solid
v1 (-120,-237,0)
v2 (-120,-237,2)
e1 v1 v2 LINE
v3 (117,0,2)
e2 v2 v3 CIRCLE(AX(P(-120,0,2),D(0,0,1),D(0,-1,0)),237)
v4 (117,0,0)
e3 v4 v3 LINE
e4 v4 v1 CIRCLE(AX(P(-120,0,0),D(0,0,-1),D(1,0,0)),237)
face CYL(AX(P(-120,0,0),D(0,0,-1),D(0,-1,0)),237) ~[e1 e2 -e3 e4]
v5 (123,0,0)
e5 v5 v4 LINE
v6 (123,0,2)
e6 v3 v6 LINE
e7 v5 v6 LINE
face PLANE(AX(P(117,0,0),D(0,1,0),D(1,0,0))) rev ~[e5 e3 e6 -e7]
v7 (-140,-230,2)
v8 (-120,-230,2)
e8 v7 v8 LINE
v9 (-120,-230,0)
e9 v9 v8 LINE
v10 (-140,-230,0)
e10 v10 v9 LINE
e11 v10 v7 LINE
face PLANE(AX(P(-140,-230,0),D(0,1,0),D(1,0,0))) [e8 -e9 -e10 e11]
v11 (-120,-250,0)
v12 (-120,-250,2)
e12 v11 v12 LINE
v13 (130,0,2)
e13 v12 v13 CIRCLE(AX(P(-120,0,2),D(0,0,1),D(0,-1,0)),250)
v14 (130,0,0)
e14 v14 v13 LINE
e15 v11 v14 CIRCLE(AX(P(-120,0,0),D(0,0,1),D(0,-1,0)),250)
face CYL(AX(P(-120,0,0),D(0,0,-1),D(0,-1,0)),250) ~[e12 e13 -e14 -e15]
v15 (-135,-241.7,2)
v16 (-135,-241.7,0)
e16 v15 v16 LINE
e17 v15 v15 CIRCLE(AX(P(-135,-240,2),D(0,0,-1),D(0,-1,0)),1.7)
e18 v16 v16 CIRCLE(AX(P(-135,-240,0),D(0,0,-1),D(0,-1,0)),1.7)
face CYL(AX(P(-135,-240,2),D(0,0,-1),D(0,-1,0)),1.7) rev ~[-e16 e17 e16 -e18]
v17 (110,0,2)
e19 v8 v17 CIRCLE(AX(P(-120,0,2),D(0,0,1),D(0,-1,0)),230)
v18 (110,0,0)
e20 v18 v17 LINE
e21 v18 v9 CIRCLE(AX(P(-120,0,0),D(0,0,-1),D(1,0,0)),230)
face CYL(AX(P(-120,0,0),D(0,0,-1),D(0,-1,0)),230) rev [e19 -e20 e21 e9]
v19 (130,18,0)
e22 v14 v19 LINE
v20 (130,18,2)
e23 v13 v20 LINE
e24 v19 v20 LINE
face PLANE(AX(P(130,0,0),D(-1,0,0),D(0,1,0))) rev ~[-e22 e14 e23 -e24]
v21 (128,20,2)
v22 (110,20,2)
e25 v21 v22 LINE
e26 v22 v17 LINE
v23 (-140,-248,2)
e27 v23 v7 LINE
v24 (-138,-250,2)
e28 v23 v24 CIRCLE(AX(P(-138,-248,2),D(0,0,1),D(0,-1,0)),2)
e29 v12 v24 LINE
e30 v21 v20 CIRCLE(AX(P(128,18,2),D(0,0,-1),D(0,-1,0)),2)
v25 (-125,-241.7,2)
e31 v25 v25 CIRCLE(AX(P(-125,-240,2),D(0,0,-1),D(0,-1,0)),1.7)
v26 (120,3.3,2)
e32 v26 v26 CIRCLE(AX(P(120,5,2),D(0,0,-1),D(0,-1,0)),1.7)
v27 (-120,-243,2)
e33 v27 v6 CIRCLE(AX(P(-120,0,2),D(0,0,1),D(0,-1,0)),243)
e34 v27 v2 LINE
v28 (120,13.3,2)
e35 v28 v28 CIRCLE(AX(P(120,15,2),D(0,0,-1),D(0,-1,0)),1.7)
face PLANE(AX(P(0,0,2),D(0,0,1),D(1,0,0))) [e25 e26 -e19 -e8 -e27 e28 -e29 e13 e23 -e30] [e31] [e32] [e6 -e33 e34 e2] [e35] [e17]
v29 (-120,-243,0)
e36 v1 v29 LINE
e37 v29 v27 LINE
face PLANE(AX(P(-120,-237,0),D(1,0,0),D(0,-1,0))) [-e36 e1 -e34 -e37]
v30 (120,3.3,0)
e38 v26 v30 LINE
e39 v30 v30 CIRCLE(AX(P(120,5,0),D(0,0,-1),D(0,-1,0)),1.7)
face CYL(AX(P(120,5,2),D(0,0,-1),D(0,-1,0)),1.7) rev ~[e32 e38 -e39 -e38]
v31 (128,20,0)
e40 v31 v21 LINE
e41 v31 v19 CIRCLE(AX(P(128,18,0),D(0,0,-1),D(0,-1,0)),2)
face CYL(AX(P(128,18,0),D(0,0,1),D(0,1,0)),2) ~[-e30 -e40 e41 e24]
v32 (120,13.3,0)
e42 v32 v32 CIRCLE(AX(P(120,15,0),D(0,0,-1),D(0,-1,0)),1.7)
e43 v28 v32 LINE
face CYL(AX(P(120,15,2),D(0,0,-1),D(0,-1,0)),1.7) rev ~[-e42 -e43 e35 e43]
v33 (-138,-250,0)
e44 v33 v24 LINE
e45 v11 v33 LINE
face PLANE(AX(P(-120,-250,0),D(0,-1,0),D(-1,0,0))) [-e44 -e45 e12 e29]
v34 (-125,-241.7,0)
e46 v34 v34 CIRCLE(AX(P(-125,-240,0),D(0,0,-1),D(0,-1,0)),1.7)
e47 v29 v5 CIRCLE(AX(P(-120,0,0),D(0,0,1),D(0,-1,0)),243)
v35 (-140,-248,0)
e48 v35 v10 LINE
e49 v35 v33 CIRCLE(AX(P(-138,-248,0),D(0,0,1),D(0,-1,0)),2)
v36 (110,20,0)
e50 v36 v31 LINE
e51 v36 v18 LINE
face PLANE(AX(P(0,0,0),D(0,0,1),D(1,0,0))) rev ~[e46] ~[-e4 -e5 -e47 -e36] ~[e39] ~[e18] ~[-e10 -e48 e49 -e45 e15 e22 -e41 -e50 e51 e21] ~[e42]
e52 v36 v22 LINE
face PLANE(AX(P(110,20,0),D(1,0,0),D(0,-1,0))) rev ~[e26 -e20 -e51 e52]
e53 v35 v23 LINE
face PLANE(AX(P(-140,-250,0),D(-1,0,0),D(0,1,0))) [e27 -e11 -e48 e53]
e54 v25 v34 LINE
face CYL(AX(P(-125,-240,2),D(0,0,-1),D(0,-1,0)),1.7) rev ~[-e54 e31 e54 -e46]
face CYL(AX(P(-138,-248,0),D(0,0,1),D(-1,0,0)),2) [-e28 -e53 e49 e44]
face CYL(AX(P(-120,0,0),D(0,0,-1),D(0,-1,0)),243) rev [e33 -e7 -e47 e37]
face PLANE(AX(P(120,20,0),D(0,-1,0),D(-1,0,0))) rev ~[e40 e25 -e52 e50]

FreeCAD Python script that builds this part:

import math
import FreeCAD as App
import Part
import Sketcher
Q = App.Units.Quantity


def edges_at(feature, points):
    """Names of the edges that pass closest to the given points."""
    edges = feature.Shape.Edges
    near = lambda p: min(range(len(edges)), key=lambda i: edges[i].distToShape(Part.Vertex(*p))[0])
    return sorted({f"Edge{near(p) + 1}" for p in points})

doc = App.newDocument("Part")
body = doc.addObject("PartDesign::Body", "Body")

# Sketch on XY plane
sketch1 = body.newObject("Sketcher::SketchObject", "Sketch")
sketch1.AttachmentSupport = (doc.getObject("XY_Plane"), [""])
sketch1.MapMode = "FlatFace"
sketch1.addGeometry([
    Part.ArcOfCircle(Part.Circle(App.Vector(-120, 0, 0), App.Vector(0, 0, 1), 230), math.radians(-90), math.radians(0)),  # 0
    Part.LineSegment(App.Vector(-120, -230, 0), App.Vector(-140, -230, 0)),  # 1
    Part.LineSegment(App.Vector(-140, -230, 0), App.Vector(-140, -250, 0)),  # 2
    Part.LineSegment(App.Vector(-140, -250, 0), App.Vector(-120, -250, 0)),  # 3
    Part.ArcOfCircle(Part.Circle(App.Vector(-120, 0, 0), App.Vector(0, 0, 1), 250), math.radians(-90), math.radians(0)),  # 4
    Part.LineSegment(App.Vector(130, 0, 0), App.Vector(130, 20, 0)),  # 5
    Part.LineSegment(App.Vector(130, 20, 0), App.Vector(110, 20, 0)),  # 6
    Part.LineSegment(App.Vector(110, 20, 0), App.Vector(110, 0, 0)),  # 7
    Part.LineSegment(App.Vector(117, 0, 0), App.Vector(123, 0, 0)),  # 8
    Part.ArcOfCircle(Part.Circle(App.Vector(-120, 0, 0), App.Vector(0, 0, 1), 243), math.radians(-90), math.radians(0)),  # 9
    Part.LineSegment(App.Vector(-120, -243, 0), App.Vector(-120, -237, 0)),  # 10
    Part.ArcOfCircle(Part.Circle(App.Vector(-120, 0, 0), App.Vector(0, 0, 1), 237), math.radians(-90), math.radians(0)),  # 11
], False)
sketch1.addConstraint([
    Sketcher.Constraint("Tangent", 0, 1, 1, 1),
    Sketcher.Constraint("Coincident", 1, 2, 2, 1),
    Sketcher.Constraint("Coincident", 2, 2, 3, 1),
    Sketcher.Constraint("Tangent", 3, 2, 4, 1),
    Sketcher.Constraint("Tangent", 4, 2, 5, 1),
    Sketcher.Constraint("Coincident", 5, 2, 6, 1),
    Sketcher.Constraint("Coincident", 6, 2, 7, 1),
    Sketcher.Constraint("Tangent", 7, 2, 0, 2),
    Sketcher.Constraint("Coincident", 8, 2, 9, 2),
    Sketcher.Constraint("Coincident", 9, 1, 10, 1),
    Sketcher.Constraint("Coincident", 10, 2, 11, 1),
    Sketcher.Constraint("Coincident", 11, 2, 8, 1),
    Sketcher.Constraint("Horizontal", 1),
    Sketcher.Constraint("Vertical", 2),
    Sketcher.Constraint("Horizontal", 3),
    Sketcher.Constraint("Vertical", 5),
    Sketcher.Constraint("Horizontal", 6),
    Sketcher.Constraint("Vertical", 7),
    Sketcher.Constraint("Horizontal", 8),
    Sketcher.Constraint("Vertical", 10),
    Sketcher.Constraint("Coincident", 4, 3, 0, 3),
    Sketcher.Constraint("Coincident", 9, 3, 0, 3),
    Sketcher.Constraint("Coincident", 11, 3, 0, 3),
    Sketcher.Constraint("PointOnObject", 0, 3, -1),
    Sketcher.Constraint("PointOnObject", 8, 2, -1),
    Sketcher.Constraint("Vertical", 3, 2, 9, 1),
    Sketcher.Constraint("Equal", 3, 6),
    Sketcher.Constraint("Equal", 2, 5),
    Sketcher.Constraint("DistanceX", 1, 2, 1, 1, Q("20 mm")),
    Sketcher.Constraint("DistanceX", -1, 1, 6, 2, Q("110 mm")),
    Sketcher.Constraint("Radius", 0, Q("230 mm")),
    Sketcher.Constraint("Radius", 9, Q("243 mm")),
    Sketcher.Constraint("Radius", 11, Q("237 mm")),
])
pad1 = body.newObject("PartDesign::Pad", "Pad")
pad1.Profile = sketch1
pad1.Length = 2

# Sketch on XY plane
sketch2 = body.newObject("Sketcher::SketchObject", "Sketch001")
sketch2.AttachmentSupport = (doc.getObject("XY_Plane"), [""])
sketch2.MapMode = "FlatFace"
sketch2.AttachmentOffset = App.Placement(App.Vector(0, 0, 2), App.Rotation())
sketch2.addGeometry([
    Part.Circle(App.Vector(120, 15, 0), App.Vector(0, 0, 1), 1.7),
    Part.Circle(App.Vector(120, 5, 0), App.Vector(0, 0, 1), 1.7),
    Part.Circle(App.Vector(-125, -240, 0), App.Vector(0, 0, 1), 1.7),
    Part.Circle(App.Vector(-135, -240, 0), App.Vector(0, 0, 1), 1.7),
], False)
sketch2.addConstraint([
    Sketcher.Constraint("Equal", 0, 1),
    Sketcher.Constraint("Equal", 1, 2),
    Sketcher.Constraint("Equal", 2, 3),
    Sketcher.Constraint("Horizontal", 2, 3, 3, 3),
    Sketcher.Constraint("Vertical", 0, 3, 1, 3),
    Sketcher.Constraint("Diameter", 0, Q("3.4 mm")),
    Sketcher.Constraint("DistanceX", -1, 1, 0, 3, Q("120 mm")),
    Sketcher.Constraint("DistanceY", -1, 1, 0, 3, Q("15 mm")),
    Sketcher.Constraint("DistanceY", -1, 1, 1, 3, Q("5 mm")),
    Sketcher.Constraint("DistanceX", 2, 3, -1, 1, Q("125 mm")),
    Sketcher.Constraint("DistanceY", 2, 3, -1, 1, Q("240 mm")),
    Sketcher.Constraint("DistanceX", 3, 3, -1, 1, Q("135 mm")),
])
doc.recompute()
hole = body.newObject("PartDesign::Hole", "Hole")
hole.Profile = sketch2
hole.ThreadType = "None"
hole.Diameter = 3.4
hole.DepthType = "ThroughAll"
doc.recompute()

fillet = body.newObject("PartDesign::Fillet", "Fillet")
fillet.Base = (hole, edges_at(hole, [(130, 20, 1), (-140, -250, 1)]))
fillet.Radius = 2

doc.recompute()
